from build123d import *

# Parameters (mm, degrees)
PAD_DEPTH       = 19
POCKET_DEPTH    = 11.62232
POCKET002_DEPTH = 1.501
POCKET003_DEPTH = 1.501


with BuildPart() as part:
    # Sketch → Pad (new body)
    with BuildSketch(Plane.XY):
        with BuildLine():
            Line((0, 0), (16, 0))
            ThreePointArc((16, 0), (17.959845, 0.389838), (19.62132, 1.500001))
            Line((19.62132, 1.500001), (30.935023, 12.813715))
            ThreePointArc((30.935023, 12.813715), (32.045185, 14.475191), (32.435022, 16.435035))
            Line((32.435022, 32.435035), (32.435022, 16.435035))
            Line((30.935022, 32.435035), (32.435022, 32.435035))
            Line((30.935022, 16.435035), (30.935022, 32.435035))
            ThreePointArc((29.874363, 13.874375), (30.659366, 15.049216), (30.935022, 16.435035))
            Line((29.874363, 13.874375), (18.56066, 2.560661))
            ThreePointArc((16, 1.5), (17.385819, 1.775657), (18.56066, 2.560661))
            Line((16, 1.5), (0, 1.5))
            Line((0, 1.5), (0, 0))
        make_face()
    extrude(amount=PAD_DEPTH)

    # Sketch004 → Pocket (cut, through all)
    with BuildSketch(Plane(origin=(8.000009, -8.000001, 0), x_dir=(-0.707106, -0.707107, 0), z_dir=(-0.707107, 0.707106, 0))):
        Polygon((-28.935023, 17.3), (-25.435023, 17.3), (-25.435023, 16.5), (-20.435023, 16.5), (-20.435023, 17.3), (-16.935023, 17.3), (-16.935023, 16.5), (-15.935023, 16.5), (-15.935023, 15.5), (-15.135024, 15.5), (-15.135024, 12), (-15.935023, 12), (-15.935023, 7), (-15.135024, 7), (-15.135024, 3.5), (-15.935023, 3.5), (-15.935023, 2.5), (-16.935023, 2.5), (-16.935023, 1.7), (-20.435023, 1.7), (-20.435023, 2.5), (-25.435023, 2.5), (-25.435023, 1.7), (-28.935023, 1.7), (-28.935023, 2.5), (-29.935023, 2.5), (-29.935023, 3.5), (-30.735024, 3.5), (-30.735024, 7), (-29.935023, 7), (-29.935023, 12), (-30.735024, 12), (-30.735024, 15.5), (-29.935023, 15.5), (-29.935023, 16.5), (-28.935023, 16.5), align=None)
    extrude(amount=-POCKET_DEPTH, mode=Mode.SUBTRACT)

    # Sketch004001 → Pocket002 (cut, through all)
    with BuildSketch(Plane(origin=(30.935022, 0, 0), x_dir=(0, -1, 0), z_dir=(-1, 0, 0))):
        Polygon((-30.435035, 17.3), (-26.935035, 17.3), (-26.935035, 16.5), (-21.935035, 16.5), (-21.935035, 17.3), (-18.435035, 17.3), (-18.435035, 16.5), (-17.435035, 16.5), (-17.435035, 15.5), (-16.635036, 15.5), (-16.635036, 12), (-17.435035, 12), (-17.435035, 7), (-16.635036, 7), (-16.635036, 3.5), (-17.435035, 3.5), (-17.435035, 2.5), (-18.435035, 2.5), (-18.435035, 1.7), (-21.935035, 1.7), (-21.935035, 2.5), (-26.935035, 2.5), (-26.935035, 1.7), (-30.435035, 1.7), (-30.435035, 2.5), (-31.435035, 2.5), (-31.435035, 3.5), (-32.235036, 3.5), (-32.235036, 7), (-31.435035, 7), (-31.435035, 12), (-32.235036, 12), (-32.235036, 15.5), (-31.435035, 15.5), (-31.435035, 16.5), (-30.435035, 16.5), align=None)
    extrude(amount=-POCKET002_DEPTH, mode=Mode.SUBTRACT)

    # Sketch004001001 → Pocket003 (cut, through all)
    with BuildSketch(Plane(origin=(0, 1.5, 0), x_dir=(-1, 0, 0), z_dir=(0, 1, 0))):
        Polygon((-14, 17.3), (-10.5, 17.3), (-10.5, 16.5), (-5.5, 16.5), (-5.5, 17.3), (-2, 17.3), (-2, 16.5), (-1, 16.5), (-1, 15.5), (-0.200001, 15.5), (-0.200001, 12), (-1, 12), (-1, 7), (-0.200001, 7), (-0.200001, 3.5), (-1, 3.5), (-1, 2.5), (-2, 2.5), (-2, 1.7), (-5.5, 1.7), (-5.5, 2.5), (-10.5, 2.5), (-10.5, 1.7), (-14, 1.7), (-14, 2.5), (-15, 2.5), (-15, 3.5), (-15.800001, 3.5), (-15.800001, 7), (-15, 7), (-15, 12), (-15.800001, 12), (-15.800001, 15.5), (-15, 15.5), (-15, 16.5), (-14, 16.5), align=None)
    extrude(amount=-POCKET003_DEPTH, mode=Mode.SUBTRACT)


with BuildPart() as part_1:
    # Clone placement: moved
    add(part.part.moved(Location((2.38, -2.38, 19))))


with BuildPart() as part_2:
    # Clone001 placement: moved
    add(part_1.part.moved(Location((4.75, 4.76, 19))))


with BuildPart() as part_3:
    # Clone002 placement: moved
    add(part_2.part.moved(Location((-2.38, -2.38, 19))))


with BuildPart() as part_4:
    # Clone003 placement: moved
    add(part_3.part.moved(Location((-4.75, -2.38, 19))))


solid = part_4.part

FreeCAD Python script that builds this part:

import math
import FreeCAD as App
import Part
import Sketcher

V = App.Vector
Q = App.Units.Quantity


def add_polygon(sketch, points):
    """Adds a closed chain of lines whose ends are joined by coincident constraints."""
    first, n = sketch.GeometryCount, len(points)
    for a, b in zip(points, points[1:] + points[:1]):
        sketch.addGeometry(Part.LineSegment(App.Vector(*a, 0), App.Vector(*b, 0)), False)
    for i in range(n):
        sketch.addConstraint(Sketcher.Constraint("Coincident", first + i, 2, first + (i + 1) % n, 1))

doc = App.newDocument("Part")
body = doc.addObject("PartDesign::Body", "Body")

sketch1 = doc.addObject("Sketcher::SketchObject", "Sketch")
body.addObject(sketch1)
sketch1.AttachmentSupport = (doc.XY_Plane, [""])
sketch1.MapMode = "FlatFace"
sketch1.addGeometry([
    Part.LineSegment(V(0, 0, 0), V(16, 0, 0)),
    Part.ArcOfCircle(Part.Circle(V(16, 5.1, 0), V(0, 0, 1), 5.1), math.radians(-90), math.radians(-45)),
    Part.LineSegment(V(19.6, 1.5, 0), V(30.9, 12.8, 0)),
    Part.ArcOfCircle(Part.Circle(V(27.3, 16.4, 0), V(0, 0, 1), 5.1), math.radians(-45), math.radians(0)),
    Part.LineSegment(V(32.4, 16.4, 0), V(32.4, 32.4, 0)),
    Part.LineSegment(V(32.4, 32.4, 0), V(30.9, 32.4, 0)),
    Part.LineSegment(V(30.9, 32.4, 0), V(30.9, 16.4, 0)),
    Part.ArcOfCircle(Part.Circle(V(27.3, 16.4, 0), V(0, 0, 1), 3.6), math.radians(-45), math.radians(0)),
    Part.LineSegment(V(29.9, 13.9, 0), V(18.6, 2.6, 0)),
    Part.ArcOfCircle(Part.Circle(V(16, 5.1, 0), V(0, 0, 1), 3.6), math.radians(-90), math.radians(-45)),
    Part.LineSegment(V(16, 1.5, 0), V(0, 1.5, 0)),
    Part.LineSegment(V(0, 1.5, 0), V(0, 0, 0)),
], False)
sketch1.addConstraint([
    Sketcher.Constraint("Tangent", 0, 2, 1, 1),
    Sketcher.Constraint("Tangent", 1, 2, 2, 1),
    Sketcher.Constraint("Tangent", 2, 2, 3, 1),
    Sketcher.Constraint("Tangent", 3, 2, 4, 1),
    Sketcher.Constraint("Coincident", 4, 2, 5, 1),
    Sketcher.Constraint("Coincident", 5, 2, 6, 1),
    Sketcher.Constraint("Tangent", 6, 2, 7, 2),
    Sketcher.Constraint("Tangent", 7, 1, 8, 1),
    Sketcher.Constraint("Tangent", 8, 2, 9, 2),
    Sketcher.Constraint("Tangent", 9, 1, 10, 1),
    Sketcher.Constraint("Coincident", 10, 2, 11, 1),
    Sketcher.Constraint("Coincident", 11, 2, 0, 1),
    Sketcher.Constraint("Horizontal", 0),
    Sketcher.Constraint("Vertical", 4),
    Sketcher.Constraint("Horizontal", 5),
    Sketcher.Constraint("Vertical", 6),
    Sketcher.Constraint("Horizontal", 10),
    Sketcher.Constraint("Vertical", 11),
    Sketcher.Constraint("Coincident", 11, 2, -1, 1),
    Sketcher.Constraint("Coincident", 7, 3, 3, 3),
    Sketcher.Constraint("Coincident", 9, 3, 1, 3),
    Sketcher.Constraint("Equal", 7, 9),
    Sketcher.Constraint("Parallel", 2, 8),
    Sketcher.Constraint("Horizontal", 1, 2, 9, 1),
    Sketcher.Constraint("Vertical", 2, 2, 5, 2),
    Sketcher.Constraint("Equal", 10, 4),
    Sketcher.Constraint("DistanceX", 0, 1, 0, 2, Q("16 mm")),
    Sketcher.Constraint("Distance", 2, Q("16 mm")),
    Sketcher.Constraint("DistanceX", 5, 2, 5, 1, Q("1.5 mm")),
])
pad1 = doc.addObject("PartDesign::Pad", "Pad")
body.addObject(pad1)
pad1.Profile = sketch1
pad1.Length = 19

sketch2 = doc.addObject("Sketcher::SketchObject", "Sketch001")
body.addObject(sketch2)
sketch2.Placement = App.Placement(V(8.000009, -8.000001, 0), App.Rotation(V(-0.707106281, -0.707107281, 0), V(0, 0, 0.999999999), V(-0.707107281, 0.707106281, 0), "ZXY"))
add_polygon(sketch2, [(-25.4, 17.3), (-28.9, 17.3), (-28.9, 16.5), (-29.9, 16.5), (-29.9, 15.5), (-30.7, 15.5), (-30.7, 12), (-29.9, 12), (-29.9, 7), (-30.7, 7), (-30.7, 3.5), (-29.9, 3.5), (-29.9, 2.5), (-28.9, 2.5), (-28.9, 1.7), (-25.4, 1.7), (-25.4, 2.5), (-20.4, 2.5), (-20.4, 1.7), (-16.9, 1.7), (-16.9, 2.5), (-15.9, 2.5), (-15.9, 3.5), (-15.1, 3.5), (-15.1, 7), (-15.9, 7), (-15.9, 12), (-15.1, 12), (-15.1, 15.5), (-15.9, 15.5), (-15.9, 16.5), (-16.9, 16.5), (-16.9, 17.3), (-20.4, 17.3), (-20.4, 16.5), (-25.4, 16.5)])
sketch2.addConstraint([
    Sketcher.Constraint("Horizontal", 0),
    Sketcher.Constraint("Vertical", 1),
    Sketcher.Constraint("Horizontal", 2),
    Sketcher.Constraint("Vertical", 3),
    Sketcher.Constraint("Horizontal", 4),
    Sketcher.Constraint("Vertical", 5),
    Sketcher.Constraint("Horizontal", 6),
    Sketcher.Constraint("Vertical", 7),
    Sketcher.Constraint("Horizontal", 8),
    Sketcher.Constraint("Vertical", 9),
    Sketcher.Constraint("Horizontal", 10),
    Sketcher.Constraint("Vertical", 11),
    Sketcher.Constraint("Horizontal", 12),
    Sketcher.Constraint("Vertical", 13),
    Sketcher.Constraint("Horizontal", 14),
    Sketcher.Constraint("Vertical", 15),
    Sketcher.Constraint("Horizontal", 16),
    Sketcher.Constraint("Vertical", 17),
    Sketcher.Constraint("Horizontal", 18),
    Sketcher.Constraint("Vertical", 19),
    Sketcher.Constraint("Horizontal", 20),
    Sketcher.Constraint("Vertical", 21),
    Sketcher.Constraint("Horizontal", 22),
    Sketcher.Constraint("Vertical", 23),
    Sketcher.Constraint("Horizontal", 24),
    Sketcher.Constraint("Vertical", 25),
    Sketcher.Constraint("Horizontal", 26),
    Sketcher.Constraint("Vertical", 27),
    Sketcher.Constraint("Horizontal", 28),
    Sketcher.Constraint("Vertical", 29),
    Sketcher.Constraint("Horizontal", 30),
    Sketcher.Constraint("Vertical", 31),
    Sketcher.Constraint("Horizontal", 32),
    Sketcher.Constraint("Vertical", 33),
    Sketcher.Constraint("Horizontal", 34),
    Sketcher.Constraint("Vertical", 35),
    Sketcher.Constraint("Horizontal", 12, 2, 15, 2),
    Sketcher.Constraint("Horizontal", 14, 2, 17, 2),
    Sketcher.Constraint("Horizontal", 16, 2, 19, 2),
    Sketcher.Constraint("Horizontal", 10, 2, 21, 2),
    Sketcher.Constraint("Horizontal", 8, 2, 23, 2),
    Sketcher.Constraint("Horizontal", 6, 2, 25, 2),
    Sketcher.Constraint("Horizontal", 4, 2, 27, 2),
    Sketcher.Constraint("Horizontal", 2, 2, 29, 2),
    Sketcher.Constraint("Horizontal", 0, 2, 31, 2),
    Sketcher.Constraint("Horizontal", 30, 2, 33, 2),
    Sketcher.Constraint("Vertical", 3, 2, 6, 2),
    Sketcher.Constraint("Vertical", 5, 2, 8, 2),
    Sketcher.Constraint("Vertical", 7, 2, 10, 2),
    Sketcher.Constraint("Vertical", 1, 2, 12, 2),
    Sketcher.Constraint("Vertical", 21, 2, 24, 2),
    Sketcher.Constraint("Vertical", 23, 2, 26, 2),
    Sketcher.Constraint("Vertical", 25, 2, 28, 2),
    Sketcher.Constraint("Vertical", 19, 2, 30, 2),
    Sketcher.Constraint("Vertical", 17, 2, 32, 2),
    Sketcher.Constraint("Vertical", 15, 2, 34, 2),
    Sketcher.Constraint("Equal", 14, 18),
    Sketcher.Constraint("Equal", 12, 20),
    Sketcher.Constraint("Equal", 28, 1),
    Sketcher.Constraint("Equal", 30, 3),
    Sketcher.Constraint("Equal", 32, 5),
    Sketcher.Constraint("Equal", 34, 7),
    Sketcher.Constraint("Equal", 5, 9),
    Sketcher.Constraint("Equal", 3, 11),
    Sketcher.Constraint("Equal", 1, 13),
    Sketcher.Constraint("Equal", 10, 15),
    Sketcher.Constraint("DistanceX", 2, 2, 2, 1, Q("1 mm")),
    Sketcher.Constraint("DistanceX", 16, 1, 16, 2, Q("5 mm")),
    Sketcher.Constraint("DistanceX", 0, 2, 0, 1, Q("3.5 mm")),
    Sketcher.Constraint("DistanceX", 4, 2, 4, 1, Q("0.800001 mm")),
    Sketcher.Constraint("DistanceY", -1, 1, 5, 2, Q("12 mm")),
    Sketcher.Constraint("DistanceX", 0, 2, -1, 1, Q("28.935023 mm")),
])
pocket1 = doc.addObject("PartDesign::Pocket", "Pocket")
body.addObject(pocket1)
pocket1.Profile = sketch2
pocket1.Type = "ThroughAll"

sketch3 = doc.addObject("Sketcher::SketchObject", "Sketch002")
body.addObject(sketch3)
sketch3.AttachmentSupport = (doc.YZ_Plane, [""])
sketch3.MapMode = "FlatFace"
sketch3.AttachmentOffset = App.Placement(V(0, 0, 30.935022), App.Rotation())
add_polygon(sketch3, [(26.9, 17.3), (30.4, 17.3), (30.4, 16.5), (31.4, 16.5), (31.4, 15.5), (32.2, 15.5), (32.2, 12), (31.4, 12), (31.4, 7), (32.2, 7), (32.2, 3.5), (31.4, 3.5), (31.4, 2.5), (30.4, 2.5), (30.4, 1.7), (26.9, 1.7), (26.9, 2.5), (21.9, 2.5), (21.9, 1.7), (18.4, 1.7), (18.4, 2.5), (17.4, 2.5), (17.4, 3.5), (16.6, 3.5), (16.6, 7), (17.4, 7), (17.4, 12), (16.6, 12), (16.6, 15.5), (17.4, 15.5), (17.4, 16.5), (18.4, 16.5), (18.4, 17.3), (21.9, 17.3), (21.9, 16.5), (26.9, 16.5)])
sketch3.addConstraint([
    Sketcher.Constraint("Horizontal", 0),
    Sketcher.Constraint("Vertical", 1),
    Sketcher.Constraint("Horizontal", 2),
    Sketcher.Constraint("Vertical", 3),
    Sketcher.Constraint("Horizontal", 4),
    Sketcher.Constraint("Vertical", 5),
    Sketcher.Constraint("Horizontal", 6),
    Sketcher.Constraint("Vertical", 7),
    Sketcher.Constraint("Horizontal", 8),
    Sketcher.Constraint("Vertical", 9),
    Sketcher.Constraint("Horizontal", 10),
    Sketcher.Constraint("Vertical", 11),
    Sketcher.Constraint("Horizontal", 12),
    Sketcher.Constraint("Vertical", 13),
    Sketcher.Constraint("Horizontal", 14),
    Sketcher.Constraint("Vertical", 15),
    Sketcher.Constraint("Horizontal", 16),
    Sketcher.Constraint("Vertical", 17),
    Sketcher.Constraint("Horizontal", 18),
    Sketcher.Constraint("Vertical", 19),
    Sketcher.Constraint("Horizontal", 20),
    Sketcher.Constraint("Vertical", 21),
    Sketcher.Constraint("Horizontal", 22),
    Sketcher.Constraint("Vertical", 23),
    Sketcher.Constraint("Horizontal", 24),
    Sketcher.Constraint("Vertical", 25),
    Sketcher.Constraint("Horizontal", 26),
    Sketcher.Constraint("Vertical", 27),
    Sketcher.Constraint("Horizontal", 28),
    Sketcher.Constraint("Vertical", 29),
    Sketcher.Constraint("Horizontal", 30),
    Sketcher.Constraint("Vertical", 31),
    Sketcher.Constraint("Horizontal", 32),
    Sketcher.Constraint("Vertical", 33),
    Sketcher.Constraint("Horizontal", 34),
    Sketcher.Constraint("Vertical", 35),
    Sketcher.Constraint("Horizontal", 12, 2, 15, 2),
    Sketcher.Constraint("Horizontal", 14, 2, 17, 2),
    Sketcher.Constraint("Horizontal", 16, 2, 19, 2),
    Sketcher.Constraint("Horizontal", 10, 2, 21, 2),
    Sketcher.Constraint("Horizontal", 8, 2, 23, 2),
    Sketcher.Constraint("Horizontal", 6, 2, 25, 2),
    Sketcher.Constraint("Horizontal", 4, 2, 27, 2),
    Sketcher.Constraint("Horizontal", 2, 2, 29, 2),
    Sketcher.Constraint("Horizontal", 0, 2, 31, 2),
    Sketcher.Constraint("Horizontal", 30, 2, 33, 2),
    Sketcher.Constraint("Vertical", 3, 2, 6, 2),
    Sketcher.Constraint("Vertical", 5, 2, 8, 2),
    Sketcher.Constraint("Vertical", 7, 2, 10, 2),
    Sketcher.Constraint("Vertical", 1, 2, 12, 2),
    Sketcher.Constraint("Vertical", 21, 2, 24, 2),
    Sketcher.Constraint("Vertical", 23, 2, 26, 2),
    Sketcher.Constraint("Vertical", 25, 2, 28, 2),
    Sketcher.Constraint("Vertical", 19, 2, 30, 2),
    Sketcher.Constraint("Vertical", 17, 2, 32, 2),
    Sketcher.Constraint("Vertical", 15, 2, 34, 2),
    Sketcher.Constraint("Equal", 14, 18),
    Sketcher.Constraint("Equal", 12, 20),
    Sketcher.Constraint("Equal", 28, 1),
    Sketcher.Constraint("Equal", 30, 3),
    Sketcher.Constraint("Equal", 32, 5),
    Sketcher.Constraint("Equal", 34, 7),
    Sketcher.Constraint("Equal", 5, 9),
    Sketcher.Constraint("Equal", 3, 11),
    Sketcher.Constraint("Equal", 1, 13),
    Sketcher.Constraint("Equal", 10, 15),
    Sketcher.Constraint("DistanceX", 2, 1, 2, 2, Q("1 mm")),
    Sketcher.Constraint("DistanceX", 16, 2, 16, 1, Q("5 mm")),
    Sketcher.Constraint("DistanceX", 0, 1, 0, 2, Q("3.5 mm")),
    Sketcher.Constraint("DistanceX", 4, 1, 4, 2, Q("0.800001 mm")),
    Sketcher.Constraint("DistanceY", -1, 1, 5, 2, Q("12 mm")),
    Sketcher.Constraint("DistanceX", -1, 1, 0, 2, Q("30.435035 mm")),
])
pocket2 = doc.addObject("PartDesign::Pocket", "Pocket001")
body.addObject(pocket2)
pocket2.Profile = sketch3
pocket2.Type = "ThroughAll"
pocket2.Reversed = True

sketch4 = doc.addObject("Sketcher::SketchObject", "Sketch003")
body.addObject(sketch4)
sketch4.AttachmentSupport = (doc.XZ_Plane, [""])
sketch4.MapMode = "FlatFace"
sketch4.AttachmentOffset = App.Placement(V(0, 0, -1.5), App.Rotation())
add_polygon(sketch4, [(10.5, 17.3), (14, 17.3), (14, 16.5), (15, 16.5), (15, 15.5), (15.8, 15.5), (15.8, 12), (15, 12), (15, 7), (15.8, 7), (15.8, 3.5), (15, 3.5), (15, 2.5), (14, 2.5), (14, 1.7), (10.5, 1.7), (10.5, 2.5), (5.5, 2.5), (5.5, 1.7), (2, 1.7), (2, 2.5), (1, 2.5), (1, 3.5), (0.2, 3.5), (0.2, 7), (1, 7), (1, 12), (0.2, 12), (0.2, 15.5), (1, 15.5), (1, 16.5), (2, 16.5), (2, 17.3), (5.5, 17.3), (5.5, 16.5), (10.5, 16.5)])
sketch4.addConstraint([
    Sketcher.Constraint("Horizontal", 0),
    Sketcher.Constraint("Vertical", 1),
    Sketcher.Constraint("Horizontal", 2),
    Sketcher.Constraint("Vertical", 3),
    Sketcher.Constraint("Horizontal", 4),
    Sketcher.Constraint("Vertical", 5),
    Sketcher.Constraint("Horizontal", 6),
    Sketcher.Constraint("Vertical", 7),
    Sketcher.Constraint("Horizontal", 8),
    Sketcher.Constraint("Vertical", 9),
    Sketcher.Constraint("Horizontal", 10),
    Sketcher.Constraint("Vertical", 11),
    Sketcher.Constraint("Horizontal", 12),
    Sketcher.Constraint("Vertical", 13),
    Sketcher.Constraint("Horizontal", 14),
    Sketcher.Constraint("Vertical", 15),
    Sketcher.Constraint("Horizontal", 16),
    Sketcher.Constraint("Vertical", 17),
    Sketcher.Constraint("Horizontal", 18),
    Sketcher.Constraint("Vertical", 19),
    Sketcher.Constraint("Horizontal", 20),
    Sketcher.Constraint("Vertical", 21),
    Sketcher.Constraint("Horizontal", 22),
    Sketcher.Constraint("Vertical", 23),
    Sketcher.Constraint("Horizontal", 24),
    Sketcher.Constraint("Vertical", 25),
    Sketcher.Constraint("Horizontal", 26),
    Sketcher.Constraint("Vertical", 27),
    Sketcher.Constraint("Horizontal", 28),
    Sketcher.Constraint("Vertical", 29),
    Sketcher.Constraint("Horizontal", 30),
    Sketcher.Constraint("Vertical", 31),
    Sketcher.Constraint("Horizontal", 32),
    Sketcher.Constraint("Vertical", 33),
    Sketcher.Constraint("Horizontal", 34),
    Sketcher.Constraint("Vertical", 35),
    Sketcher.Constraint("Horizontal", 12, 2, 15, 2),
    Sketcher.Constraint("Horizontal", 14, 2, 17, 2),
    Sketcher.Constraint("Horizontal", 16, 2, 19, 2),
    Sketcher.Constraint("Horizontal", 10, 2, 21, 2),
    Sketcher.Constraint("Horizontal", 8, 2, 23, 2),
    Sketcher.Constraint("Horizontal", 6, 2, 25, 2),
    Sketcher.Constraint("Horizontal", 4, 2, 27, 2),
    Sketcher.Constraint("Horizontal", 2, 2, 29, 2),
    Sketcher.Constraint("Horizontal", 0, 2, 31, 2),
    Sketcher.Constraint("Horizontal", 30, 2, 33, 2),
    Sketcher.Constraint("Vertical", 3, 2, 6, 2),
    Sketcher.Constraint("Vertical", 5, 2, 8, 2),
    Sketcher.Constraint("Vertical", 7, 2, 10, 2),
    Sketcher.Constraint("Vertical", 1, 2, 12, 2),
    Sketcher.Constraint("Vertical", 21, 2, 24, 2),
    Sketcher.Constraint("Vertical", 23, 2, 26, 2),
    Sketcher.Constraint("Vertical", 25, 2, 28, 2),
    Sketcher.Constraint("Vertical", 19, 2, 30, 2),
    Sketcher.Constraint("Vertical", 17, 2, 32, 2),
    Sketcher.Constraint("Vertical", 15, 2, 34, 2),
    Sketcher.Constraint("Equal", 14, 18),
    Sketcher.Constraint("Equal", 12, 20),
    Sketcher.Constraint("Equal", 10, 22),
    Sketcher.Constraint("Equal", 28, 1),
    Sketcher.Constraint("Equal", 30, 3),
    Sketcher.Constraint("Equal", 32, 5),
    Sketcher.Constraint("Equal", 34, 7),
    Sketcher.Constraint("Equal", 5, 9),
    Sketcher.Constraint("Equal", 3, 11),
    Sketcher.Constraint("Equal", 1, 13),
    Sketcher.Constraint("DistanceX", 2, 1, 2, 2, Q("1 mm")),
    Sketcher.Constraint("DistanceX", 16, 2, 16, 1, Q("5 mm")),
    Sketcher.Constraint("DistanceX", 0, 1, 0, 2, Q("3.5 mm")),
    Sketcher.Constraint("DistanceX", 4, 1, 4, 2, Q("0.800001 mm")),
    Sketcher.Constraint("DistanceX", -1, 1, 0, 2, Q("14 mm")),
    Sketcher.Constraint("DistanceY", -1, 1, 5, 2, Q("12 mm")),
])
pocket3 = doc.addObject("PartDesign::Pocket", "Pocket002")
body.addObject(pocket3)
pocket3.Profile = sketch4
pocket3.Type = "ThroughAll"
pocket3.Reversed = True
body2 = doc.addObject("PartDesign::Body", "Body001")
doc.recompute()

body.Placement = App.Placement(V(2.38, -2.38, 19), App.Rotation(V(0, 0, 1), 0))
boolean = doc.addObject("PartDesign::Boolean", "Boolean")
body2.addObject(boolean)
boolean.Type = "Fuse"
boolean.addObjects([body])
body3 = doc.addObject("PartDesign::Body", "Body002")
doc.recompute()

body2.Placement = App.Placement(V(4.75, 4.76, 19), App.Rotation(V(0, 0, 1), 0))
boolean2 = doc.addObject("PartDesign::Boolean", "Boolean001")
body3.addObject(boolean2)
boolean2.Type = "Fuse"
boolean2.addObjects([body2])
body4 = doc.addObject("PartDesign::Body", "Body003")
doc.recompute()

body3.Placement = App.Placement(V(-2.38, -2.38, 19), App.Rotation(V(0, 0, 1), 0))
boolean3 = doc.addObject("PartDesign::Boolean", "Boolean002")
body4.addObject(boolean3)
boolean3.Type = "Fuse"
boolean3.addObjects([body3])
body5 = doc.addObject("PartDesign::Body", "Body004")
doc.recompute()

body4.Placement = App.Placement(V(-4.75, -2.38, 19), App.Rotation(V(0, 0, 1), 0))
boolean4 = doc.addObject("PartDesign::Boolean", "Boolean003")
body5.addObject(boolean4)
boolean4.Type = "Fuse"
boolean4.addObjects([body4])

doc.recompute()
